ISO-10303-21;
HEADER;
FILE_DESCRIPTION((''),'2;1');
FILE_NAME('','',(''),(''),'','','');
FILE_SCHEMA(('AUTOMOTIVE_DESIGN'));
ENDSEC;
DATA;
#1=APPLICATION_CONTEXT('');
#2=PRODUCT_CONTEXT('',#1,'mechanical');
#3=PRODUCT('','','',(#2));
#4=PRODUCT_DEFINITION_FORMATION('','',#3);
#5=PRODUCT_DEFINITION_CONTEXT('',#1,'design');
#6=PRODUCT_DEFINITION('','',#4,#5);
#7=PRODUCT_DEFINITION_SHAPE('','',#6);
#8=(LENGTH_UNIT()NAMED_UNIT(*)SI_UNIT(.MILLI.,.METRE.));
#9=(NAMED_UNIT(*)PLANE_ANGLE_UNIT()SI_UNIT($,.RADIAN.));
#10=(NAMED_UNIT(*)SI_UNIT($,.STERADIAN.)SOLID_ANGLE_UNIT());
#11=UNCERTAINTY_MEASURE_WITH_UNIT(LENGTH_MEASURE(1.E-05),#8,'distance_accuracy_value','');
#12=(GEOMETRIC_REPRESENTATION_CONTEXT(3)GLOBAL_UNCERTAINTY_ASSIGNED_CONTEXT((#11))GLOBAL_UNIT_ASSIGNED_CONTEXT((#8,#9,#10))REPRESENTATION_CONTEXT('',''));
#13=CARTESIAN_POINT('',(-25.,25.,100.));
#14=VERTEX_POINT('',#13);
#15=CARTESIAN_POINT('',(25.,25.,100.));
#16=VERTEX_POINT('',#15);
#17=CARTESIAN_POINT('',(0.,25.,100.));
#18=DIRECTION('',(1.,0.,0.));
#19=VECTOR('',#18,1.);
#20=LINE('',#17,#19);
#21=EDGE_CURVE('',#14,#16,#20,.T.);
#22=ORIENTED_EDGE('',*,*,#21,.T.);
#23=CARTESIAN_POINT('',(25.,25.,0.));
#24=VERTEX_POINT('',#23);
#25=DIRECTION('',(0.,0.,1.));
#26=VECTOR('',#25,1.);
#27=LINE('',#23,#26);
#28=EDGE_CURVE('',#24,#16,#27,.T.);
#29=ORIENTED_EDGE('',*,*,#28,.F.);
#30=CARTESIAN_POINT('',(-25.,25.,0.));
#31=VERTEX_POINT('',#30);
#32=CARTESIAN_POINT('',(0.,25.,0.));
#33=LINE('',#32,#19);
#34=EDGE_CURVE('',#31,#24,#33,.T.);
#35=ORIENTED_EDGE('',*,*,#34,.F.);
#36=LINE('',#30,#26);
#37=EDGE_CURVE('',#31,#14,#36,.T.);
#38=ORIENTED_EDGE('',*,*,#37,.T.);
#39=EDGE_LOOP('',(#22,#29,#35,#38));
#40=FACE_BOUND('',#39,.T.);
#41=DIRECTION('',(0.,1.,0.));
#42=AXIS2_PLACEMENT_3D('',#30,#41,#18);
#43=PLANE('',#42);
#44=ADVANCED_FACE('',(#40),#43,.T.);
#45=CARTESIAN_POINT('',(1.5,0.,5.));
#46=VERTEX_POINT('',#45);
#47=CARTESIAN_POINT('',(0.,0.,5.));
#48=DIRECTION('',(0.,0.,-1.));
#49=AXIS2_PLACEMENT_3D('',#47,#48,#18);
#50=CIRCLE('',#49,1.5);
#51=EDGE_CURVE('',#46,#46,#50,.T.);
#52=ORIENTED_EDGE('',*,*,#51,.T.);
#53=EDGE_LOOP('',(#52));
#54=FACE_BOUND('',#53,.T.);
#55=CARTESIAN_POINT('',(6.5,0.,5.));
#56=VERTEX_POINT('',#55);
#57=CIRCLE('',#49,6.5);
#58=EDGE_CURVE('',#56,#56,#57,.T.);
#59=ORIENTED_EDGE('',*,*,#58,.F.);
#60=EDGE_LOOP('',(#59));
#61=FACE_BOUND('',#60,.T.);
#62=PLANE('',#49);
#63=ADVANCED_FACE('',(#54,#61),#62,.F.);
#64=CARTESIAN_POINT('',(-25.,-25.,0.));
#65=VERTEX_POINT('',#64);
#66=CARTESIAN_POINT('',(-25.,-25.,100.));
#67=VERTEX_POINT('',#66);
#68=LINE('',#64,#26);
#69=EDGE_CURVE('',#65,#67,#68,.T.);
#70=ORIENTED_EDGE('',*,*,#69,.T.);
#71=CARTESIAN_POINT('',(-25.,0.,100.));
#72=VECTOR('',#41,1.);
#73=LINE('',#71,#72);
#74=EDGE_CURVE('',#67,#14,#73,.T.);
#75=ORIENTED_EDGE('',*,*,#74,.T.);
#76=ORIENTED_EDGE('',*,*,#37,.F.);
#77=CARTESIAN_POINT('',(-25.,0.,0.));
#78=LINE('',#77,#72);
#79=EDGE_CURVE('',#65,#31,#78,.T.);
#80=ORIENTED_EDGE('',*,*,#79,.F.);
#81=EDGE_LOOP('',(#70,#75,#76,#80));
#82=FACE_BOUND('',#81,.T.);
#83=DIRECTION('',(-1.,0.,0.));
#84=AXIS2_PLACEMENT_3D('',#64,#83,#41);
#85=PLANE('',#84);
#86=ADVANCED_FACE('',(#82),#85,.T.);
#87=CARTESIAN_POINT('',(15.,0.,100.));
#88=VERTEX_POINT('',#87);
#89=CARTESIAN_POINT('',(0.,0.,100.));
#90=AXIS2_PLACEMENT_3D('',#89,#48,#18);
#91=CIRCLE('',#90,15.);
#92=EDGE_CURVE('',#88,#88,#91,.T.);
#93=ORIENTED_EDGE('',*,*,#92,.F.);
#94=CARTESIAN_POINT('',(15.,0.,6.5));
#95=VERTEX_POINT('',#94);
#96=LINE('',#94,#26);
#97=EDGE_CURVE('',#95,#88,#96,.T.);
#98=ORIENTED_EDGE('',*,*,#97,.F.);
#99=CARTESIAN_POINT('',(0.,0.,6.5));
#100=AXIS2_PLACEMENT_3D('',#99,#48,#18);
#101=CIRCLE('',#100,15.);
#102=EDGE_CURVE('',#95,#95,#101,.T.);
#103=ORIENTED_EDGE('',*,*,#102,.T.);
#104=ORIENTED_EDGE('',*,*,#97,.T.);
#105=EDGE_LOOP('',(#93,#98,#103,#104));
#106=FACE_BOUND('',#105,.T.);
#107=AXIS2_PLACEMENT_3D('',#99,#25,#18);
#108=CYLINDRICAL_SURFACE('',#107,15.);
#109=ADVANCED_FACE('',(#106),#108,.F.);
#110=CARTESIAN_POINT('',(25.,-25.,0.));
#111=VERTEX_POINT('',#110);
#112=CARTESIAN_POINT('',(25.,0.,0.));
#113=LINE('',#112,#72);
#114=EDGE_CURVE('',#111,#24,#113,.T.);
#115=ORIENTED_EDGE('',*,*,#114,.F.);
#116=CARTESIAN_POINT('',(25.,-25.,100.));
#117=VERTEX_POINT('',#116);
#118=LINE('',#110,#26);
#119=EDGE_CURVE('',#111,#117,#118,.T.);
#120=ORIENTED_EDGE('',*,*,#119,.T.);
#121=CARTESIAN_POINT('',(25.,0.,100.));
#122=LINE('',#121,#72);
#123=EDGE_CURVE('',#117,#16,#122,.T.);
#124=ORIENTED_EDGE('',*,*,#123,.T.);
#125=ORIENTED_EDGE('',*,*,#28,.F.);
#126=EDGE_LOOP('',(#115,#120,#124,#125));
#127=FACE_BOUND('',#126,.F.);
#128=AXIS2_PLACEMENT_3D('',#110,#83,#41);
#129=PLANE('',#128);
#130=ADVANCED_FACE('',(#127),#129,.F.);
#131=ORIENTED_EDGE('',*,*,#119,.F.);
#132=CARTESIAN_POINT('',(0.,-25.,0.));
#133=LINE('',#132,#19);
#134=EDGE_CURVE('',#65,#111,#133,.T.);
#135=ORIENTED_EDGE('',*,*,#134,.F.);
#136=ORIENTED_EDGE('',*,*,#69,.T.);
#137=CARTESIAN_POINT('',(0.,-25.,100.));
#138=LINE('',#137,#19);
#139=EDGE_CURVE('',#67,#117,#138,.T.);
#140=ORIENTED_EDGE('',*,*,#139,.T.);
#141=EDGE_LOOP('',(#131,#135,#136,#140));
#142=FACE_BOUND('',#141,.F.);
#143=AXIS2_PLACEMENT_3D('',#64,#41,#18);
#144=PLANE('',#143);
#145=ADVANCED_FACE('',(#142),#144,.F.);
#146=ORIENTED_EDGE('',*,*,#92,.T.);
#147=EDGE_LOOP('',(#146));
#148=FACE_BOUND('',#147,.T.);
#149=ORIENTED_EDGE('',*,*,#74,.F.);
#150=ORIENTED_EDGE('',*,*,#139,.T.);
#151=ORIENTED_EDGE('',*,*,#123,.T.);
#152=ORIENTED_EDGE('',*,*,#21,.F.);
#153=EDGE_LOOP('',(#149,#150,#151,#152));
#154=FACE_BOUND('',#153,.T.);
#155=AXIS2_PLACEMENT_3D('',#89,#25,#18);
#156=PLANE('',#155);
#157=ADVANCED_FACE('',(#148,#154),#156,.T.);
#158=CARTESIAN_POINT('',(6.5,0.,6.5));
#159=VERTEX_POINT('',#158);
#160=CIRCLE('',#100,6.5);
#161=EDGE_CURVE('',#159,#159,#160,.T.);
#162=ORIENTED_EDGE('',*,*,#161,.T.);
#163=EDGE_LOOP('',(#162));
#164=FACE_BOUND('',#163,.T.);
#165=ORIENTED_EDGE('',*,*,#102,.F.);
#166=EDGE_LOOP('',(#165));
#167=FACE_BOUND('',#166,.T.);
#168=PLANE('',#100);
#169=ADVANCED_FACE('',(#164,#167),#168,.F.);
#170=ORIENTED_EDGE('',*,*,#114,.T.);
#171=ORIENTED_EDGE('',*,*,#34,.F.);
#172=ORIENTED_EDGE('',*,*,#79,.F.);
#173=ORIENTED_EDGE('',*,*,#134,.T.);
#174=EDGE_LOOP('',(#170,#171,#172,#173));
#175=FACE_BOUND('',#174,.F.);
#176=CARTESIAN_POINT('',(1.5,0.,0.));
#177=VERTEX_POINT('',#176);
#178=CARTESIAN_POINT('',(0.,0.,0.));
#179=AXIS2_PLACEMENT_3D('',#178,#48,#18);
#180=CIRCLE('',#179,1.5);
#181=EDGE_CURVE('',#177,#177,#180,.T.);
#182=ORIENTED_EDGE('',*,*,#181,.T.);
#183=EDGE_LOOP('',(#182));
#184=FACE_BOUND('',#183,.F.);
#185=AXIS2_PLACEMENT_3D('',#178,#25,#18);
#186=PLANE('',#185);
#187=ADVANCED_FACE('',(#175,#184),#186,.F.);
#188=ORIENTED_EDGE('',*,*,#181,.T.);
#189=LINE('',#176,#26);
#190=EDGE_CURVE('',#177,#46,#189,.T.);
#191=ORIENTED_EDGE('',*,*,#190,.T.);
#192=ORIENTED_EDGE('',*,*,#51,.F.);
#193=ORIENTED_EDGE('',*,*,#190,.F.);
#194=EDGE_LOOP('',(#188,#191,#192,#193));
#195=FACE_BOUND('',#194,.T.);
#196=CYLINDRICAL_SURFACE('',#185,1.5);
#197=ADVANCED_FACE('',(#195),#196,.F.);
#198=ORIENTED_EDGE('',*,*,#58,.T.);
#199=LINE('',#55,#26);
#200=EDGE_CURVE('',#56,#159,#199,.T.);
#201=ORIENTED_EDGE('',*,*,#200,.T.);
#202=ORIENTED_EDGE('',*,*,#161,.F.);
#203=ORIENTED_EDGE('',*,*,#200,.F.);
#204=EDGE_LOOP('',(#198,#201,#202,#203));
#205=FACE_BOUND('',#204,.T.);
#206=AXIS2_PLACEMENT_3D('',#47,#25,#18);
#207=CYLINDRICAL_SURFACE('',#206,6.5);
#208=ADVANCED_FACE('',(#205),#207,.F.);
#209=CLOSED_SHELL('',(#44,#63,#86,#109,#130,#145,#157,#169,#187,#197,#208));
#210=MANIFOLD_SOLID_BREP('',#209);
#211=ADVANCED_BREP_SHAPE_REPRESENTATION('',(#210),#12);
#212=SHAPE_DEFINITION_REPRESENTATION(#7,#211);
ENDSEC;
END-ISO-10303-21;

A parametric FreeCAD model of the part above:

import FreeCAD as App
import Part
import Sketcher

doc = App.newDocument("Part")
body = doc.addObject("PartDesign::Body", "Body")

sketch1 = doc.addObject("Sketcher::SketchObject", "Sketch")
body.addObject(sketch1)
sketch1.AttachmentSupport = (doc.XY_Plane, [""])
sketch1.MapMode = "FlatFace"
sketch1.addGeometry([
    Part.LineSegment(App.Vector(-25, 25, 0), App.Vector(-25, -25, 0)),
    Part.LineSegment(App.Vector(-25, -25, 0), App.Vector(25, -25, 0)),
    Part.LineSegment(App.Vector(25, -25, 0), App.Vector(25, 25, 0)),
    Part.LineSegment(App.Vector(25, 25, 0), App.Vector(-25, 25, 0)),
], False)
sketch1.addConstraint([
    Sketcher.Constraint("Coincident", 0, 2, 1, 1),
    Sketcher.Constraint("Coincident", 1, 2, 2, 1),
    Sketcher.Constraint("Coincident", 2, 2, 3, 1),
    Sketcher.Constraint("Coincident", 3, 2, 0, 1),
    Sketcher.Constraint("Vertical", 0),
    Sketcher.Constraint("Horizontal", 1),
    Sketcher.Constraint("Vertical", 2),
    Sketcher.Constraint("Horizontal", 3),
    Sketcher.Constraint("Symmetric", 0, 2, 2, 2, -1, 1),
    Sketcher.Constraint("Equal", 3, 0),
    Sketcher.Constraint("DistanceX", 1, 1, 1, 2, 50.0),
])
pad1 = doc.addObject("PartDesign::Pad", "Pad")
body.addObject(pad1)
pad1.Profile = sketch1
pad1.Length = 100

sketch2 = doc.addObject("Sketcher::SketchObject", "Sketch001")
body.addObject(sketch2)
sketch2.AttachmentSupport = (doc.XZ_Plane, [""])
sketch2.MapMode = "FlatFace"
sketch2.addGeometry([
    Part.LineSegment(App.Vector(0, 0, 0), App.Vector(1.5, 0, 0)),
    Part.LineSegment(App.Vector(1.5, 0, 0), App.Vector(1.5, 5, 0)),
    Part.LineSegment(App.Vector(1.5, 5, 0), App.Vector(6.5, 5, 0)),
    Part.LineSegment(App.Vector(6.5, 5, 0), App.Vector(6.5, 6.5, 0)),
    Part.LineSegment(App.Vector(6.5, 6.5, 0), App.Vector(15, 6.5, 0)),
    Part.LineSegment(App.Vector(15, 6.5, 0), App.Vector(15, 100, 0)),
    Part.LineSegment(App.Vector(15, 100, 0), App.Vector(0, 100, 0)),
    Part.LineSegment(App.Vector(0, 100, 0), App.Vector(0, 0, 0)),
], False)
sketch2.addConstraint([
    Sketcher.Constraint("Coincident", 0, 2, 1, 1),
    Sketcher.Constraint("Coincident", 1, 2, 2, 1),
    Sketcher.Constraint("Coincident", 2, 2, 3, 1),
    Sketcher.Constraint("Coincident", 3, 2, 4, 1),
    Sketcher.Constraint("Coincident", 4, 2, 5, 1),
    Sketcher.Constraint("Coincident", 5, 2, 6, 1),
    Sketcher.Constraint("Coincident", 6, 2, 7, 1),
    Sketcher.Constraint("Coincident", 7, 2, 0, 1),
    Sketcher.Constraint("Horizontal", 0),
    Sketcher.Constraint("Vertical", 1),
    Sketcher.Constraint("Horizontal", 2),
    Sketcher.Constraint("Vertical", 3),
    Sketcher.Constraint("Horizontal", 4),
    Sketcher.Constraint("Vertical", 5),
    Sketcher.Constraint("Horizontal", 6),
    Sketcher.Constraint("Vertical", 7),
    Sketcher.Constraint("Coincident", 7, 2, -1, 1),
    Sketcher.Constraint("Equal", 2, 1),
    Sketcher.Constraint("Equal", 0, 3),
    Sketcher.Constraint("DistanceX", 2, 1, 2, 2, 5.0),
    Sketcher.Constraint("DistanceX", 6, 2, 6, 1, 15.0),
    Sketcher.Constraint("DistanceY", 7, 2, 7, 1, 100.0),
    Sketcher.Constraint("DistanceX", 0, 1, 0, 2, 1.5),
])
groove = doc.addObject("PartDesign::Groove", "Groove")
body.addObject(groove)
groove.Profile = sketch2
groove.ReferenceAxis = (sketch2, ["V_Axis"])
groove.Angle = 360

doc.recompute()
